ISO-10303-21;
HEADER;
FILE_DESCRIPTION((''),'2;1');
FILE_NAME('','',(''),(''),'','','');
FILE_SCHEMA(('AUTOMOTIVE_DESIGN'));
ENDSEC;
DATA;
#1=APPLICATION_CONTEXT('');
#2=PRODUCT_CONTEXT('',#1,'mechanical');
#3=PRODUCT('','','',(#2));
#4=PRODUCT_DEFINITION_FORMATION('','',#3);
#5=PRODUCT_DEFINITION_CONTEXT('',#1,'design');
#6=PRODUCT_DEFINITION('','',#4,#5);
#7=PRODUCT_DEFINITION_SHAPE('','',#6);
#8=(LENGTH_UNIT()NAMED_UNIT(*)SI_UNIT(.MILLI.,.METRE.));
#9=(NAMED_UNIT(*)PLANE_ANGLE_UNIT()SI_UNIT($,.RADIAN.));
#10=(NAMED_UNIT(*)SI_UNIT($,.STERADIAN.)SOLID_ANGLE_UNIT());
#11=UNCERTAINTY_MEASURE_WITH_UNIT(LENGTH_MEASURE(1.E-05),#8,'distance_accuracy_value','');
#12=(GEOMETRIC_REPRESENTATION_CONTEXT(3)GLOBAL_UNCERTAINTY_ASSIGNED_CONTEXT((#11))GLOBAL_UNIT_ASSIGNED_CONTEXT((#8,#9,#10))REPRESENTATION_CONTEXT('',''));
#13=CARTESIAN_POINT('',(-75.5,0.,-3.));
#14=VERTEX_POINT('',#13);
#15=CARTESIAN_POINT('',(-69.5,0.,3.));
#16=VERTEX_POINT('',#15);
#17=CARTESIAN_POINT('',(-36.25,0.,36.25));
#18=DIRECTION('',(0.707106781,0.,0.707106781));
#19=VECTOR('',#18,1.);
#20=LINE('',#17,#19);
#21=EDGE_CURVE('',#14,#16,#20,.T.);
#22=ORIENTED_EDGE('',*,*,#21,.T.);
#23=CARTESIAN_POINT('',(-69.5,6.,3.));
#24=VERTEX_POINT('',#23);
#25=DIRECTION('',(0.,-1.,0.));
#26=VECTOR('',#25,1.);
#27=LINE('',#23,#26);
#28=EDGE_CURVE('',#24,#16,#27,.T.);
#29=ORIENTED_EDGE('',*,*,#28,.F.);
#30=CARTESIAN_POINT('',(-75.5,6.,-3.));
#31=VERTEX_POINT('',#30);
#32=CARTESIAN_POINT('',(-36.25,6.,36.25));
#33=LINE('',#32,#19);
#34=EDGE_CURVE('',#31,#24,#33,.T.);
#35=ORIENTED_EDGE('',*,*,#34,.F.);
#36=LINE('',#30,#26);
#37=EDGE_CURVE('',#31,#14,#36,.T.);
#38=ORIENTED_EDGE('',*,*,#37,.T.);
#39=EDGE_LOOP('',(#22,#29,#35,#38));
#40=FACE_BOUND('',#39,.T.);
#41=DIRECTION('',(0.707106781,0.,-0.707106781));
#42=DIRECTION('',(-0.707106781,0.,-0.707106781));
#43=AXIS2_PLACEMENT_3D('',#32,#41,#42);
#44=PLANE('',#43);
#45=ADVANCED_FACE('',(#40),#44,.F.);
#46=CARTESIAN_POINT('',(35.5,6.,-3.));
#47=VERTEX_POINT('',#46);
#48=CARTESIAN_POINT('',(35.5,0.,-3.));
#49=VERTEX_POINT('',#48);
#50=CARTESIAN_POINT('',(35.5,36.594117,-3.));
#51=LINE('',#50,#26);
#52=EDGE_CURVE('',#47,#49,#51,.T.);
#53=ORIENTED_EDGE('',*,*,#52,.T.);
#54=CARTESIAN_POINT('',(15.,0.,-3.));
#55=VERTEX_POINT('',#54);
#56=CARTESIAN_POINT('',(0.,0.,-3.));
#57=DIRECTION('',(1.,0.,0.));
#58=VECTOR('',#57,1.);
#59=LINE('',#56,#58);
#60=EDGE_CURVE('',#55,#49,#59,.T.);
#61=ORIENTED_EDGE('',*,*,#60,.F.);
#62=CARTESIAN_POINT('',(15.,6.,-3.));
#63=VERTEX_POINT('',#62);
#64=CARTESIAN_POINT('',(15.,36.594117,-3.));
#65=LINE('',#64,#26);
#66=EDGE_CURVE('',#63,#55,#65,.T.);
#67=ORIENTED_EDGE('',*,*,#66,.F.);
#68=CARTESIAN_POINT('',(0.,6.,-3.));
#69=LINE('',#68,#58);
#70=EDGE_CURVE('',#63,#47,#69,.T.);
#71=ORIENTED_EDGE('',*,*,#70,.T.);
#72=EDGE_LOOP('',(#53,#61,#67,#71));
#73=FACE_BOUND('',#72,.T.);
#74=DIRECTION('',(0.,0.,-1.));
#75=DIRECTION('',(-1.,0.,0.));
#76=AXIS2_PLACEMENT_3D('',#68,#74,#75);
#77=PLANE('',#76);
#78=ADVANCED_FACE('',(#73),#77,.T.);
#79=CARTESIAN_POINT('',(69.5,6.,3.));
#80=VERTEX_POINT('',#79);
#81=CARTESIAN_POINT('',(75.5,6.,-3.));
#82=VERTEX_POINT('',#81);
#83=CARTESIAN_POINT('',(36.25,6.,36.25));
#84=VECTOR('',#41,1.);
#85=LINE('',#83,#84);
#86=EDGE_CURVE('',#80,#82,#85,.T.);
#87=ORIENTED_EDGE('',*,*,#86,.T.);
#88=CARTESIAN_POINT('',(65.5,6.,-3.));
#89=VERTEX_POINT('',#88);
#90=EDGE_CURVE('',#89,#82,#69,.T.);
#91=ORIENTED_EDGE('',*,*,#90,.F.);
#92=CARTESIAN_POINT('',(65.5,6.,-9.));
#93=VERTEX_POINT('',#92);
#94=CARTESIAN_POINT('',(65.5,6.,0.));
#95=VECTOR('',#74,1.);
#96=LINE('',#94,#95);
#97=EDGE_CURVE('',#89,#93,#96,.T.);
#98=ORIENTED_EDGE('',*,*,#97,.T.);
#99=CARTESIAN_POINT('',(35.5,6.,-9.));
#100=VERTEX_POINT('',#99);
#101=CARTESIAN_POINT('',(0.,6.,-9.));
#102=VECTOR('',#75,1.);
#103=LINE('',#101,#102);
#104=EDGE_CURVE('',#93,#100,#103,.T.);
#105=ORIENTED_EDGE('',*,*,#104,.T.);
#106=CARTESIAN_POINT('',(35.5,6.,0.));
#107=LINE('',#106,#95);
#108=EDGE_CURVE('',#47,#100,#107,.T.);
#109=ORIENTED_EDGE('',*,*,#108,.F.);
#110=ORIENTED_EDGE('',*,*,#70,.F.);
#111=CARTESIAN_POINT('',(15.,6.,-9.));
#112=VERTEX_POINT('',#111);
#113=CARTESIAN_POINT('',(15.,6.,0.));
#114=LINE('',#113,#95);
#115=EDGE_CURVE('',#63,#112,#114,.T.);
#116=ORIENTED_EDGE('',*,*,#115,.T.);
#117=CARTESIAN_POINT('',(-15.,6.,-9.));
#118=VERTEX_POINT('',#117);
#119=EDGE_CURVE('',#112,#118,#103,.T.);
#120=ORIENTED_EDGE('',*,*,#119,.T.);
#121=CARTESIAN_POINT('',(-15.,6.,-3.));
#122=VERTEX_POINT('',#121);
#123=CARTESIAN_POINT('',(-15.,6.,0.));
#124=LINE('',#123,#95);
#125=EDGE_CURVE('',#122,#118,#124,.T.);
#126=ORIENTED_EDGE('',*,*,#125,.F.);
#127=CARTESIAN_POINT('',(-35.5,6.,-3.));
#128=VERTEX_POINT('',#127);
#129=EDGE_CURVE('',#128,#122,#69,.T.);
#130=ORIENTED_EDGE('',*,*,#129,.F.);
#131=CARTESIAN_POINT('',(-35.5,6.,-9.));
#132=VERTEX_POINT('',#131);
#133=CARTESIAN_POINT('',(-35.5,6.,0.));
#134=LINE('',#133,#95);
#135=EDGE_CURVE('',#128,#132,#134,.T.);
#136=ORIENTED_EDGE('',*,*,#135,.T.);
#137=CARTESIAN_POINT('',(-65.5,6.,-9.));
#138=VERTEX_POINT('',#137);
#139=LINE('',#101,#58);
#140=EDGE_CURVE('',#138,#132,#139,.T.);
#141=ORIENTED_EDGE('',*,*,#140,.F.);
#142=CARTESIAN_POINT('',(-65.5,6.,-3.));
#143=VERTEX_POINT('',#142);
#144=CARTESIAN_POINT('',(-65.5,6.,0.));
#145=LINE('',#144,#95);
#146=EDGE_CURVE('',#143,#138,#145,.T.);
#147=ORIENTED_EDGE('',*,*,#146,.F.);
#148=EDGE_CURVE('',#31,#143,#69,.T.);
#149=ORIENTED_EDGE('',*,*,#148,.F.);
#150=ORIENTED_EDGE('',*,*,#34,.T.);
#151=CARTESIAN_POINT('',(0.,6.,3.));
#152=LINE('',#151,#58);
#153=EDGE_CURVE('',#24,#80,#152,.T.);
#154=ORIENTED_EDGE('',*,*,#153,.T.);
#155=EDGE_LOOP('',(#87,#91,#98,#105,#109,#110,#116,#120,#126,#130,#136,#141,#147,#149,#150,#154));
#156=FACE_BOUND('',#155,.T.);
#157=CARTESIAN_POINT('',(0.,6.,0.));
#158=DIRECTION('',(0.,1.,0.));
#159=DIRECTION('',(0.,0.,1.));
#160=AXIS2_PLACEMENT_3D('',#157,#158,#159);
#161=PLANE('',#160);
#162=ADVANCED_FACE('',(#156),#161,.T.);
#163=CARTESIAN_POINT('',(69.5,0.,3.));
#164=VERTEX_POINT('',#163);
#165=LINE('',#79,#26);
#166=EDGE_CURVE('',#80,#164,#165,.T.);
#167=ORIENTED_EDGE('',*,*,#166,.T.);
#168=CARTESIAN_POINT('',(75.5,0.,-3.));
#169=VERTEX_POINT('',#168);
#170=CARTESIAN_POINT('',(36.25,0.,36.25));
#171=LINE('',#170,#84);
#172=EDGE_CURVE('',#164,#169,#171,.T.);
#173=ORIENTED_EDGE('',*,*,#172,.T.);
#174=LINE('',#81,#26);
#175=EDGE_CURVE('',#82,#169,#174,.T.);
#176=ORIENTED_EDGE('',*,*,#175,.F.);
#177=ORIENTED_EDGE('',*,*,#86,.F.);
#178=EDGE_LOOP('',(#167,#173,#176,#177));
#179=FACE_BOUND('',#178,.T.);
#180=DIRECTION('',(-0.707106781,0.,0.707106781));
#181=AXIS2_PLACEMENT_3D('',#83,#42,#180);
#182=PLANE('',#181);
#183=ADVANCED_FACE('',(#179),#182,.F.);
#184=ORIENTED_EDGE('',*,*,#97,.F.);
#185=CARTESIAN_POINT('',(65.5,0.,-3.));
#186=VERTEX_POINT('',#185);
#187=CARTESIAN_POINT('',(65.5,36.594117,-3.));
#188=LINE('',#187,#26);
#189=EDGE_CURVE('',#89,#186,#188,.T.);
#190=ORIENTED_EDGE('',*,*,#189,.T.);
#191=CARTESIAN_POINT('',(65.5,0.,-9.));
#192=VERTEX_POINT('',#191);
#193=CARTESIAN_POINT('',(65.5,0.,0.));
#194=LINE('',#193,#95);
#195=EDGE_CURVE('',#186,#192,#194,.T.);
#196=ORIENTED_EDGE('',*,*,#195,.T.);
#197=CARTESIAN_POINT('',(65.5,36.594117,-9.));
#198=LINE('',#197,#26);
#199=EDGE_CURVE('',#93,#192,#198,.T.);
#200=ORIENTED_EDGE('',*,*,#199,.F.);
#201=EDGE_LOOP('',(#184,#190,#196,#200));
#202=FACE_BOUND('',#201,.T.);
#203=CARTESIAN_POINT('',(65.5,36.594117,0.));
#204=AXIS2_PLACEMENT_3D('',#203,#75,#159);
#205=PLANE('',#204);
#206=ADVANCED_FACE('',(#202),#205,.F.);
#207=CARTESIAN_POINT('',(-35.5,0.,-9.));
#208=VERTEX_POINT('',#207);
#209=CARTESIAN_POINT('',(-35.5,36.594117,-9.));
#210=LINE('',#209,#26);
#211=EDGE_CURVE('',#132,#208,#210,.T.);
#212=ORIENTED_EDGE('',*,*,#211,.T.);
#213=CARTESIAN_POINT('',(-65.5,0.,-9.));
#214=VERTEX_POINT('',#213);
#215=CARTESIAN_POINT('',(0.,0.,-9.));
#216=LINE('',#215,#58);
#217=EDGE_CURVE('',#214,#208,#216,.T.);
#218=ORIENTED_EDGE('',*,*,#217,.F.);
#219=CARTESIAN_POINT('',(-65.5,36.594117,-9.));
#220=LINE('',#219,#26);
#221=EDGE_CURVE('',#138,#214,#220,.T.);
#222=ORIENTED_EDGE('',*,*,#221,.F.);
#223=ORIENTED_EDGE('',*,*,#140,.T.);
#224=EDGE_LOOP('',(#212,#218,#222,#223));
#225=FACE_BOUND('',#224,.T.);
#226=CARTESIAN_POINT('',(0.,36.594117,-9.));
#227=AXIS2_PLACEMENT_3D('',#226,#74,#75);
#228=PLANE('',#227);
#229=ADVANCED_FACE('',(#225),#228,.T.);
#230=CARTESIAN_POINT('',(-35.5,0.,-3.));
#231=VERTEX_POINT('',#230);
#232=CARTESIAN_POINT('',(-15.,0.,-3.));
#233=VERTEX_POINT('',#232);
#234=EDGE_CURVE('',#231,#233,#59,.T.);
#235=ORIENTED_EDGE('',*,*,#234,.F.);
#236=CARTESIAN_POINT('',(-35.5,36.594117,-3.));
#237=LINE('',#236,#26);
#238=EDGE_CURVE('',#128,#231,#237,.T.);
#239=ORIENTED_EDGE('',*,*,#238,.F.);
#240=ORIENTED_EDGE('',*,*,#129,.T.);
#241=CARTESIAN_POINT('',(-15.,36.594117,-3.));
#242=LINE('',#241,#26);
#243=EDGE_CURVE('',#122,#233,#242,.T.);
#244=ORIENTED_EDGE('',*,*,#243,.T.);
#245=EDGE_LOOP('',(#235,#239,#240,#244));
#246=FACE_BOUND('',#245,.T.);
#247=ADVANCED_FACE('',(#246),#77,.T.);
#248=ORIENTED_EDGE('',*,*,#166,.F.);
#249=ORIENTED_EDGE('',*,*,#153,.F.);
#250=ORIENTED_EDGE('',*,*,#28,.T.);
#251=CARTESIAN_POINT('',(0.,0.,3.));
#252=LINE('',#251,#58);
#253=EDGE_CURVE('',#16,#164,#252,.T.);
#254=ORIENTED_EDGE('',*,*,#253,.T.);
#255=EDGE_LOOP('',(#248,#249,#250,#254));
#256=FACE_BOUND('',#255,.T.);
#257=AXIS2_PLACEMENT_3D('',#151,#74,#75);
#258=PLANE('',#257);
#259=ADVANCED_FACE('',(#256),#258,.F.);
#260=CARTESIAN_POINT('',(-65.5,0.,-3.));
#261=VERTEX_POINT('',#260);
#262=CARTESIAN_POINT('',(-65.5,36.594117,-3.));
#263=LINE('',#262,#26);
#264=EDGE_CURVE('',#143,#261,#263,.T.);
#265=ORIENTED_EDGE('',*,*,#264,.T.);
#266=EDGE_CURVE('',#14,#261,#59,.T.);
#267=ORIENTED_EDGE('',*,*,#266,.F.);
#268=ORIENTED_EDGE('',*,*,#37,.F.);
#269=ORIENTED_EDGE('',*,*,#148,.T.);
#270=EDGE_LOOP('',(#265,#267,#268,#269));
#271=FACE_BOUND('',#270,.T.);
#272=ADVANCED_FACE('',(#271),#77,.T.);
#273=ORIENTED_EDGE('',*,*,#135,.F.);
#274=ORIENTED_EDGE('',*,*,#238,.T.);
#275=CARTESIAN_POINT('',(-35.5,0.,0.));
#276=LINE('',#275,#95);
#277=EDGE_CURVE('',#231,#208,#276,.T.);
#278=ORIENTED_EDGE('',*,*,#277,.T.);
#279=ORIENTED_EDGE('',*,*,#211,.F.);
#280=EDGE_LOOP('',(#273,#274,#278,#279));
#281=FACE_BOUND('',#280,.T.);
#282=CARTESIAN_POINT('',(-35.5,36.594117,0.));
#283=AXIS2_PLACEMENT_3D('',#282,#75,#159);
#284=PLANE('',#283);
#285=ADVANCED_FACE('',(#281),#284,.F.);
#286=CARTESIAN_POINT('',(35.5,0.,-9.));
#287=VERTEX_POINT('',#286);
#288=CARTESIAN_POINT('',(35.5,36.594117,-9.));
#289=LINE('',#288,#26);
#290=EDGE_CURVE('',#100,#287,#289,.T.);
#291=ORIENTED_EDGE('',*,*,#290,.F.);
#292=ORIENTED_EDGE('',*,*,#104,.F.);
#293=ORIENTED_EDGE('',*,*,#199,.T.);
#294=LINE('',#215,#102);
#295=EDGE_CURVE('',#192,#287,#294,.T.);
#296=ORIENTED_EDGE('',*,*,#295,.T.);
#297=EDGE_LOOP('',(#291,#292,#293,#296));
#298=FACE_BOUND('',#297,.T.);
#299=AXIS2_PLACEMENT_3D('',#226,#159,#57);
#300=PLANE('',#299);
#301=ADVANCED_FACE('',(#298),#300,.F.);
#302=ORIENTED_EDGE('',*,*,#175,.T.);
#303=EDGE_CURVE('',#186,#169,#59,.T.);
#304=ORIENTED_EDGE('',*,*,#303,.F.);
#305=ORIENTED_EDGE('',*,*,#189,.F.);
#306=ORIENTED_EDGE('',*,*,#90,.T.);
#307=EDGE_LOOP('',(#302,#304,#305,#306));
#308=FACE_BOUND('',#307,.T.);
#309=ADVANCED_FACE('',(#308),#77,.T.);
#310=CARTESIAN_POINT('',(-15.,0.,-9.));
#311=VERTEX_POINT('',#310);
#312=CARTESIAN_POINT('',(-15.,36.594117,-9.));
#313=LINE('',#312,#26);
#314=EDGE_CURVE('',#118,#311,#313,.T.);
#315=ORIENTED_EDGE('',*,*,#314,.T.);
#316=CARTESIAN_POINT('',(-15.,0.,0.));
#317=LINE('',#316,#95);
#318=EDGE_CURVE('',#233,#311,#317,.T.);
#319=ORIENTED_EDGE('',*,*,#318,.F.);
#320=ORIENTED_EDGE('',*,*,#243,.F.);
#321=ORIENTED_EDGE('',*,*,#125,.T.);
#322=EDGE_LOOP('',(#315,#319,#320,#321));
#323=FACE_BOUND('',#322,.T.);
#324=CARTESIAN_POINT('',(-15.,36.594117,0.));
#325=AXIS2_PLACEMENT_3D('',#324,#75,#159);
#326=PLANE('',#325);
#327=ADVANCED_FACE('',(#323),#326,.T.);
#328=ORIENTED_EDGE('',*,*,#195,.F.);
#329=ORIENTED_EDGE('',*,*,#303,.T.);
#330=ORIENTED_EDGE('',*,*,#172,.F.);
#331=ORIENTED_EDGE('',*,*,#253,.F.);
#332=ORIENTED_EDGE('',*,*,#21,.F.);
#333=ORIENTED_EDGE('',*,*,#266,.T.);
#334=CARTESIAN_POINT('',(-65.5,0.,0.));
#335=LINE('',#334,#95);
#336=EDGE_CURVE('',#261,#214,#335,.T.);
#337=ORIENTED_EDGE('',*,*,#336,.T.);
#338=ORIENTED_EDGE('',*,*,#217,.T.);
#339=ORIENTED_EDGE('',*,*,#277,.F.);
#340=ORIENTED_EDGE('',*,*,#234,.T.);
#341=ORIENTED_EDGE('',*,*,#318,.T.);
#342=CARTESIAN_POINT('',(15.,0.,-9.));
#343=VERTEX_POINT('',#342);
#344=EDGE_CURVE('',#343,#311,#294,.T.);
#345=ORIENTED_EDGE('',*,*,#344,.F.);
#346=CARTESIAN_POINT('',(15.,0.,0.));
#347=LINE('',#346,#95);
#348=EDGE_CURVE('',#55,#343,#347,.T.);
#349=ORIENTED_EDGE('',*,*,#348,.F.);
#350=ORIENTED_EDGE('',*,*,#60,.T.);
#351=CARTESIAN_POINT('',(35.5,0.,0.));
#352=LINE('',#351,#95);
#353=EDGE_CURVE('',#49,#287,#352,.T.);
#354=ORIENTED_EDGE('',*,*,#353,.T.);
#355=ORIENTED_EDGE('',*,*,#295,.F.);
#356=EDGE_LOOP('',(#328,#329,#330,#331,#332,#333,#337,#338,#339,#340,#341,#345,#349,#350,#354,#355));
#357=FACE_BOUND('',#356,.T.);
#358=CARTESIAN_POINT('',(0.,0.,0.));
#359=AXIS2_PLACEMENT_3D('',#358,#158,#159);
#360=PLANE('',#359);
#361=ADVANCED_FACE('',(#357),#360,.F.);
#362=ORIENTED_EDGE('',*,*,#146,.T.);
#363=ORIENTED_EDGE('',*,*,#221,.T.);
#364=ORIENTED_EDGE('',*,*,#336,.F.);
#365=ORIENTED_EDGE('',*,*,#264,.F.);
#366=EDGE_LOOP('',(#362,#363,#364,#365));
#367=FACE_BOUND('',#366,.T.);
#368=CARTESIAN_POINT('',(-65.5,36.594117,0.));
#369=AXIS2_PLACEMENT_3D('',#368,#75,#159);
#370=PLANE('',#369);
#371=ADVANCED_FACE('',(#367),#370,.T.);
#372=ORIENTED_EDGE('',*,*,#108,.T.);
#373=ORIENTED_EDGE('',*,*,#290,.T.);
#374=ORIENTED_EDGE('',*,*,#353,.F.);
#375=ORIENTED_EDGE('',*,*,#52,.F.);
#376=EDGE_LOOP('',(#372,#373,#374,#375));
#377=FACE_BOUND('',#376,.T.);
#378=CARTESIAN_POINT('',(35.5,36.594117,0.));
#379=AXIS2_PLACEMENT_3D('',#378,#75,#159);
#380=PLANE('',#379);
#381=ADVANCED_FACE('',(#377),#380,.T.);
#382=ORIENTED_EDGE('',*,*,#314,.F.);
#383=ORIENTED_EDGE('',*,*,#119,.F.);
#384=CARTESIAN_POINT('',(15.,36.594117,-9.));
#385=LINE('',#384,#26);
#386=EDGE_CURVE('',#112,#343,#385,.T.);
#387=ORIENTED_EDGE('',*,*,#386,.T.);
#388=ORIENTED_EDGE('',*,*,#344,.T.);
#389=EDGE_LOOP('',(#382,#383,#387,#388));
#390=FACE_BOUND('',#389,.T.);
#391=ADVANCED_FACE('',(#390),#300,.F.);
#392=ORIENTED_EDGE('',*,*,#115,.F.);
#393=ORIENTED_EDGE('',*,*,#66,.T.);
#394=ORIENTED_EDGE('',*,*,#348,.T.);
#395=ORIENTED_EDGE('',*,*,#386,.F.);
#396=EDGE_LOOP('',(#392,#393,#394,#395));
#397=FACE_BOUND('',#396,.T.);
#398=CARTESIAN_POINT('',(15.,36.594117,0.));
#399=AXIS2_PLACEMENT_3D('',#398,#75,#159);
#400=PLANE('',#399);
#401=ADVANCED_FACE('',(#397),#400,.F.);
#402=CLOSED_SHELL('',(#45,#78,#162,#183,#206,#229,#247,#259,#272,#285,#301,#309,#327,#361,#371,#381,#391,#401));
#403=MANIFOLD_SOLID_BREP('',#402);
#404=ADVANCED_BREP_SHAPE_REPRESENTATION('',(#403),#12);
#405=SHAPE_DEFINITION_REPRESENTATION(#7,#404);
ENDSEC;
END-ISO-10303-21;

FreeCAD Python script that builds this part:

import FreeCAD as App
import Part
import Sketcher
from FreeCAD import Vector


def add_polygon(sketch, points):
    """Adds a closed chain of lines whose ends are joined by coincident constraints."""
    first, n = sketch.GeometryCount, len(points)
    for a, b in zip(points, points[1:] + points[:1]):
        sketch.addGeometry(Part.LineSegment(App.Vector(*a, 0), App.Vector(*b, 0)), False)
    for i in range(n):
        sketch.addConstraint(Sketcher.Constraint("Coincident", first + i, 2, first + (i + 1) % n, 1))

doc = App.newDocument("Part")
body = doc.addObject("PartDesign::Body", "Body")

# Sketch on XZ plane
sketch1 = body.newObject("Sketcher::SketchObject", "Sketch")
sketch1.AttachmentSupport = (doc.getObject("XZ_Plane"), [""])
sketch1.MapMode = "FlatFace"
add_polygon(sketch1, [(76, -3), (-76, -3), (-70, 3), (70, 3)])  # lines 0-3
sketch1.addConstraint(Sketcher.Constraint("Horizontal", 0))
sketch1.addConstraint(Sketcher.Constraint("Horizontal", 2))
sketch1.addConstraint(Sketcher.Constraint("Perpendicular", 1, 3))
sketch1.addConstraint(Sketcher.Constraint("Equal", 1, 3))
sketch1.addConstraint(Sketcher.Constraint("DistanceX", 0, 2, 0, 1, 151.0))
sketch1.addConstraint(Sketcher.Constraint("DistanceX", 2, 1, 2, 2, 139.0))
sketch1.addConstraint(Sketcher.Constraint("DistanceY", 0, 2, -1, 1, 3.0))
sketch1.addConstraint(Sketcher.Constraint("DistanceX", 0, 2, -1, 1, 75.5))
pad1 = body.newObject("PartDesign::Pad", "Pad")
pad1.Profile = sketch1
pad1.Length = 6
pad1.Reversed = True

# Sketch on XZ plane
sketch2 = body.newObject("Sketcher::SketchObject", "Sketch001")
sketch2.AttachmentSupport = (doc.getObject("XZ_Plane"), [""])
sketch2.MapMode = "FlatFace"
add_polygon(sketch2, [(36, -3), (36, -9), (66, -9), (66, -3)])  # lines 0-3
add_polygon(sketch2, [(-15, -3), (-15, -9), (15, -9), (15, -3)])  # lines 4-7
add_polygon(sketch2, [(-66, -3), (-66, -9), (-36, -9), (-36, -3)])  # lines 8-11
sketch2.addConstraint(Sketcher.Constraint("Vertical", 0))
sketch2.addConstraint(Sketcher.Constraint("Horizontal", 1))
sketch2.addConstraint(Sketcher.Constraint("Vertical", 2))
sketch2.addConstraint(Sketcher.Constraint("Horizontal", 3))
sketch2.addConstraint(Sketcher.Constraint("Vertical", 4))
sketch2.addConstraint(Sketcher.Constraint("Horizontal", 5))
sketch2.addConstraint(Sketcher.Constraint("Vertical", 6))
sketch2.addConstraint(Sketcher.Constraint("Horizontal", 7))
sketch2.addConstraint(Sketcher.Constraint("Vertical", 8))
sketch2.addConstraint(Sketcher.Constraint("Horizontal", 9))
sketch2.addConstraint(Sketcher.Constraint("Vertical", 10))
sketch2.addConstraint(Sketcher.Constraint("Horizontal", 11))
sketch2.addConstraint(Sketcher.Constraint("Symmetric", 1, 2, 8, 2, -2))
sketch2.addConstraint(Sketcher.Constraint("Symmetric", 3, 2, 10, 2, -2))
sketch2.addConstraint(Sketcher.Constraint("Horizontal", 1, 2, 4, 2))
sketch2.addConstraint(Sketcher.Constraint("Horizontal", 3, 2, 6, 2))
sketch2.addConstraint(Sketcher.Constraint("Equal", 3, 5))
sketch2.addConstraint(Sketcher.Constraint("DistanceX", 1, 1, 1, 2, 30.0))
sketch2.addConstraint(Sketcher.Constraint("DistanceY", 0, 2, 0, 1, 6.0))
sketch2.addConstraint(Sketcher.Constraint("DistanceY", 0, 2, -1, 1, 9.0))
sketch2.addConstraint(Sketcher.Constraint("DistanceX", 4, 2, -1, 1, 15.0))
sketch2.addConstraint(Sketcher.Constraint("DistanceX", 8, 2, 0, 2, 101.0))
pad2 = body.newObject("PartDesign::Pad", "Pad001")
pad2.Profile = sketch2
pad2.Length = 6
pad2.Reversed = True

doc.recompute()
